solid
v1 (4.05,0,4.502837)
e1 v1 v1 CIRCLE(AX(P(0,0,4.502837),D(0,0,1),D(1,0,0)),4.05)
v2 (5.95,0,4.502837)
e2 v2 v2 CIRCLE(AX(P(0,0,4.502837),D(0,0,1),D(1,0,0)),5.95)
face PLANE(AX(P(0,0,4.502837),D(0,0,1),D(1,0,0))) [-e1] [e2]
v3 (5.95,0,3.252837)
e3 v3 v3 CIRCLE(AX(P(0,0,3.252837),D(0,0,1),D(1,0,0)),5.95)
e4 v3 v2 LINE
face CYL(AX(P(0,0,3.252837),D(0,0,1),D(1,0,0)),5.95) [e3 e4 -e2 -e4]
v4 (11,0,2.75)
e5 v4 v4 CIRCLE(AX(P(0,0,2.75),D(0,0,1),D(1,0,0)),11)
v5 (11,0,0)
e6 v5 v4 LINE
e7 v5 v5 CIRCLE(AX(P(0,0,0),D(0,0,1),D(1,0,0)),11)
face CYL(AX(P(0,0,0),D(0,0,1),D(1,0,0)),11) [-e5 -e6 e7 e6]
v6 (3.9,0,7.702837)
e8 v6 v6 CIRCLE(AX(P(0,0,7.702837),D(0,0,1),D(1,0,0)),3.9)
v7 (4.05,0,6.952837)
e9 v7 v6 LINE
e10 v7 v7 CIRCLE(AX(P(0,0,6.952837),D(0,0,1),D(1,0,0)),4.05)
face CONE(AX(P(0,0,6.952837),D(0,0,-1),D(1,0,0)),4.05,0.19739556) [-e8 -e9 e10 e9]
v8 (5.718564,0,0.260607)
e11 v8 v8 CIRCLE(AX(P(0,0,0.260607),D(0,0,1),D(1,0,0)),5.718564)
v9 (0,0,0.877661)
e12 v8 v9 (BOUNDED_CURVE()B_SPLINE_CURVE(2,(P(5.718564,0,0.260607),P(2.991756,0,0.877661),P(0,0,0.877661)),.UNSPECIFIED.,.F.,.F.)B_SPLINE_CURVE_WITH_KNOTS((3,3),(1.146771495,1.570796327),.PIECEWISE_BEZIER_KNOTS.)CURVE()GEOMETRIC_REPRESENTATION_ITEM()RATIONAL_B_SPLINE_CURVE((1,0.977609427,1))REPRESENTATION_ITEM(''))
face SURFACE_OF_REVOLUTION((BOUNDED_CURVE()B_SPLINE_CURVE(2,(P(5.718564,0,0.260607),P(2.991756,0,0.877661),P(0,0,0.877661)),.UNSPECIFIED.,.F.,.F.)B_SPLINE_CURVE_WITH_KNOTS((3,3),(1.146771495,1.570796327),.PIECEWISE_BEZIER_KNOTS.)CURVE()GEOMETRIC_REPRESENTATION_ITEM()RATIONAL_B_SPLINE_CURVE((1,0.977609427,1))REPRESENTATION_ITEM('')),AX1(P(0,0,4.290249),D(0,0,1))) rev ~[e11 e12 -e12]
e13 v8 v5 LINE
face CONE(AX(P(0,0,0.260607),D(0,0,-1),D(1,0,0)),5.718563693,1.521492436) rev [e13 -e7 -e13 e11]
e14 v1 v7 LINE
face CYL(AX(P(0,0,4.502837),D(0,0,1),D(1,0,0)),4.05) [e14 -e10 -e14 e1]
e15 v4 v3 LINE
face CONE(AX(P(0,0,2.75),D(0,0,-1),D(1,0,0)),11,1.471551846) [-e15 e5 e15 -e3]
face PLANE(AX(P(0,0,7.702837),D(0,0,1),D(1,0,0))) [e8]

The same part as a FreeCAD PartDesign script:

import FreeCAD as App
import Part
import Sketcher
from FreeCAD import Vector
Q = App.Units.Quantity

doc = App.newDocument("Part")
body = doc.addObject("PartDesign::Body", "Body")

# Sketch on XZ plane
sketch1 = doc.addObject("Sketcher::SketchObject", "Sketch")
body.addObject(sketch1)
sketch1.AttachmentSupport = (doc.XZ_Plane, [""])
sketch1.MapMode = "FlatFace"
sketch1.addGeometry(Part.LineSegment(Vector(3.9, 7.702837, 0), Vector(0, 7.702837, 0)), False)
sketch1.addGeometry(Part.LineSegment(Vector(0, 7.702837, 0), Vector(0, 0.877661, 0)), False)
sketch1.addGeometry(Part.BSplineCurve([Vector(5.718564, 0.260607, 0), Vector(2.991756, 0.877661, 0), Vector(0, 0.877661, 0)], [3, 3], [1.146771495, 1.570796327], False, 2, [1, 0.977609427, 1], False), False)
sketch1.addGeometry(Part.LineSegment(Vector(5.718564, 0.260607, 0), Vector(11, 0, 0)), False)
sketch1.addGeometry(Part.LineSegment(Vector(11, 0, 0), Vector(11, 2.75, 0)), False)
sketch1.addGeometry(Part.LineSegment(Vector(11, 2.75, 0), Vector(5.95, 3.252837, 0)), False)
sketch1.addGeometry(Part.LineSegment(Vector(5.95, 3.252837, 0), Vector(5.95, 4.502837, 0)), False)
sketch1.addGeometry(Part.LineSegment(Vector(5.95, 4.502837, 0), Vector(4.05, 4.502837, 0)), False)
sketch1.addGeometry(Part.LineSegment(Vector(4.05, 4.502837, 0), Vector(4.05, 6.952837, 0)), False)
sketch1.addGeometry(Part.LineSegment(Vector(4.05, 6.952837, 0), Vector(3.9, 7.702837, 0)), False)
sketch1.addConstraint(Sketcher.Constraint("Block", 2))
sketch1.addConstraint(Sketcher.Constraint("Coincident", 0, 2, 1, 1))
sketch1.addConstraint(Sketcher.Constraint("Coincident", 1, 2, 2, 2))
sketch1.addConstraint(Sketcher.Constraint("Coincident", 2, 1, 3, 1))
sketch1.addConstraint(Sketcher.Constraint("Coincident", 3, 2, 4, 1))
sketch1.addConstraint(Sketcher.Constraint("Coincident", 4, 2, 5, 1))
sketch1.addConstraint(Sketcher.Constraint("Coincident", 5, 2, 6, 1))
sketch1.addConstraint(Sketcher.Constraint("Coincident", 6, 2, 7, 1))
sketch1.addConstraint(Sketcher.Constraint("Coincident", 7, 2, 8, 1))
sketch1.addConstraint(Sketcher.Constraint("Coincident", 8, 2, 9, 1))
sketch1.addConstraint(Sketcher.Constraint("Coincident", 9, 2, 0, 1))
sketch1.addConstraint(Sketcher.Constraint("Horizontal", 0))
sketch1.addConstraint(Sketcher.Constraint("Vertical", 1))
sketch1.addConstraint(Sketcher.Constraint("Vertical", 4))
sketch1.addConstraint(Sketcher.Constraint("Vertical", 6))
sketch1.addConstraint(Sketcher.Constraint("Horizontal", 7))
sketch1.addConstraint(Sketcher.Constraint("Vertical", 8))
sketch1.addConstraint(Sketcher.Constraint("PointOnObject", 3, 2, -1))
sketch1.addConstraint(Sketcher.Constraint("DistanceX", 0, 2, 0, 1, Q("3.9 mm")))
sketch1.addConstraint(Sketcher.Constraint("DistanceX", 7, 2, 7, 1, Q("1.9 mm")))
sketch1.addConstraint(Sketcher.Constraint("DistanceX", -1, 1, 3, 2, Q("11 mm")))
sketch1.addConstraint(Sketcher.Constraint("DistanceY", 4, 1, 4, 2, Q("2.75 mm")))
sketch1.addConstraint(Sketcher.Constraint("DistanceY", 6, 1, 6, 2, Q("1.25 mm")))
sketch1.addConstraint(Sketcher.Constraint("DistanceY", 8, 1, 8, 2, Q("2.45 mm")))
sketch1.addConstraint(Sketcher.Constraint("DistanceY", 6, 2, 0, 2, Q("3.2 mm")))
sketch1.addConstraint(Sketcher.Constraint("DistanceX", -1, 1, 5, 2, Q("5.95 mm")))
sketch1.addConstraint(Sketcher.Constraint("DistanceY", 1, 2, 1, 1, Q("6.825176 mm")))
revolution = doc.addObject("PartDesign::Revolution", "Revolution")
body.addObject(revolution)
revolution.Profile = sketch1
revolution.ReferenceAxis = (sketch1, ["V_Axis"])
revolution.Angle = 360

doc.recompute()
